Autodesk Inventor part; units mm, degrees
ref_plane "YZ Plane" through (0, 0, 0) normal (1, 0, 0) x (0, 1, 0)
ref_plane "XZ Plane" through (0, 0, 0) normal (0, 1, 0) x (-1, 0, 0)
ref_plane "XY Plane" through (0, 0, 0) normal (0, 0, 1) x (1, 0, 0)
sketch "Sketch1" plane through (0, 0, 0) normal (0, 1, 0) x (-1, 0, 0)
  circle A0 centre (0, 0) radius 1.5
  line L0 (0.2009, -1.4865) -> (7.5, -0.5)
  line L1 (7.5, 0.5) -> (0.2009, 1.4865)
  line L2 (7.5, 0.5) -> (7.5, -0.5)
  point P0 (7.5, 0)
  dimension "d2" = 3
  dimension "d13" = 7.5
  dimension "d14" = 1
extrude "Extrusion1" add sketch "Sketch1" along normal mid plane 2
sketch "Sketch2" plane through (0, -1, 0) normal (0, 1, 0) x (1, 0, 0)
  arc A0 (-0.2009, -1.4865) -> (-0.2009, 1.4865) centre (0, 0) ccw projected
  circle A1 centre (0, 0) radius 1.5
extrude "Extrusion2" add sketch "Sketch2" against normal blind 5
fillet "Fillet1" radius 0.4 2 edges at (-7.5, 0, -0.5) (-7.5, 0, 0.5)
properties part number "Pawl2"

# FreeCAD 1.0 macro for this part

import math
import FreeCAD as App
import Part
import Sketcher

V = App.Vector


def edges_at(feature, points):
    """Names of the edges that pass closest to the given points."""
    edges = feature.Shape.Edges
    near = lambda p: min(range(len(edges)), key=lambda i: edges[i].distToShape(Part.Vertex(*p))[0])
    return sorted({f"Edge{near(p) + 1}" for p in points})

doc = App.newDocument("Part")
body = doc.addObject("PartDesign::Body", "Body")

sketch1 = doc.addObject("Sketcher::SketchObject", "Sketch")
body.addObject(sketch1)
sketch1.AttachmentSupport = (doc.XZ_Plane, [""])
sketch1.MapMode = "FlatFace"
sketch1.addGeometry([
    Part.ArcOfCircle(Part.Circle(V(0, 0, 0), V(0, 0, 1), 1.5), math.radians(-98), math.radians(98)),
    Part.LineSegment(V(-0.2, -1.5, 0), V(-7.5, -0.5, 0)),
    Part.LineSegment(V(-7.5, -0.5, 0), V(-7.5, 0.5, 0)),
    Part.LineSegment(V(-7.5, 0.5, 0), V(-0.2, 1.5, 0)),
], False)
sketch1.addConstraint([
    Sketcher.Constraint("Tangent", 0, 1, 1, 1),
    Sketcher.Constraint("Coincident", 1, 2, 2, 1),
    Sketcher.Constraint("Coincident", 2, 2, 3, 1),
    Sketcher.Constraint("Tangent", 3, 2, 0, 2),
    Sketcher.Constraint("Vertical", 2),
    Sketcher.Constraint("Coincident", 0, 3, -1, 1),
    Sketcher.Constraint("Vertical", 0, 1, 3, 2),
    Sketcher.Constraint("Radius", 0, 1.5),
    Sketcher.Constraint("DistanceY", 2, 1, 2, 2, 1.0),
    Sketcher.Constraint("DistanceX", 1, 2, -1, 1, 7.5),
])
pad1 = doc.addObject("PartDesign::Pad", "Pad")
body.addObject(pad1)
pad1.Profile = sketch1
pad1.Length = 2
pad1.Midplane = True

sketch2 = doc.addObject("Sketcher::SketchObject", "Sketch001")
body.addObject(sketch2)
sketch2.AttachmentSupport = (doc.XZ_Plane, [""])
sketch2.MapMode = "FlatFace"
sketch2.AttachmentOffset = App.Placement(V(0, 0, 1), App.Rotation())
sketch2.addGeometry(Part.Circle(V(0, 0, 0), V(0, 0, 1), 1.5), False)
sketch2.addConstraint([
    Sketcher.Constraint("Coincident", 0, 3, -1, 1),
    Sketcher.Constraint("Diameter", 0, 3.0),
])
pad2 = doc.addObject("PartDesign::Pad", "Pad001")
body.addObject(pad2)
pad2.Profile = sketch2
pad2.Length = 5
doc.recompute()

fillet = doc.addObject("PartDesign::Fillet", "Fillet")
body.addObject(fillet)
fillet.Base = (pad2, edges_at(pad2, [(-7.5, 0, -0.5), (-7.5, 0, 0.5)]))
fillet.Radius = 0.4

doc.recompute()
